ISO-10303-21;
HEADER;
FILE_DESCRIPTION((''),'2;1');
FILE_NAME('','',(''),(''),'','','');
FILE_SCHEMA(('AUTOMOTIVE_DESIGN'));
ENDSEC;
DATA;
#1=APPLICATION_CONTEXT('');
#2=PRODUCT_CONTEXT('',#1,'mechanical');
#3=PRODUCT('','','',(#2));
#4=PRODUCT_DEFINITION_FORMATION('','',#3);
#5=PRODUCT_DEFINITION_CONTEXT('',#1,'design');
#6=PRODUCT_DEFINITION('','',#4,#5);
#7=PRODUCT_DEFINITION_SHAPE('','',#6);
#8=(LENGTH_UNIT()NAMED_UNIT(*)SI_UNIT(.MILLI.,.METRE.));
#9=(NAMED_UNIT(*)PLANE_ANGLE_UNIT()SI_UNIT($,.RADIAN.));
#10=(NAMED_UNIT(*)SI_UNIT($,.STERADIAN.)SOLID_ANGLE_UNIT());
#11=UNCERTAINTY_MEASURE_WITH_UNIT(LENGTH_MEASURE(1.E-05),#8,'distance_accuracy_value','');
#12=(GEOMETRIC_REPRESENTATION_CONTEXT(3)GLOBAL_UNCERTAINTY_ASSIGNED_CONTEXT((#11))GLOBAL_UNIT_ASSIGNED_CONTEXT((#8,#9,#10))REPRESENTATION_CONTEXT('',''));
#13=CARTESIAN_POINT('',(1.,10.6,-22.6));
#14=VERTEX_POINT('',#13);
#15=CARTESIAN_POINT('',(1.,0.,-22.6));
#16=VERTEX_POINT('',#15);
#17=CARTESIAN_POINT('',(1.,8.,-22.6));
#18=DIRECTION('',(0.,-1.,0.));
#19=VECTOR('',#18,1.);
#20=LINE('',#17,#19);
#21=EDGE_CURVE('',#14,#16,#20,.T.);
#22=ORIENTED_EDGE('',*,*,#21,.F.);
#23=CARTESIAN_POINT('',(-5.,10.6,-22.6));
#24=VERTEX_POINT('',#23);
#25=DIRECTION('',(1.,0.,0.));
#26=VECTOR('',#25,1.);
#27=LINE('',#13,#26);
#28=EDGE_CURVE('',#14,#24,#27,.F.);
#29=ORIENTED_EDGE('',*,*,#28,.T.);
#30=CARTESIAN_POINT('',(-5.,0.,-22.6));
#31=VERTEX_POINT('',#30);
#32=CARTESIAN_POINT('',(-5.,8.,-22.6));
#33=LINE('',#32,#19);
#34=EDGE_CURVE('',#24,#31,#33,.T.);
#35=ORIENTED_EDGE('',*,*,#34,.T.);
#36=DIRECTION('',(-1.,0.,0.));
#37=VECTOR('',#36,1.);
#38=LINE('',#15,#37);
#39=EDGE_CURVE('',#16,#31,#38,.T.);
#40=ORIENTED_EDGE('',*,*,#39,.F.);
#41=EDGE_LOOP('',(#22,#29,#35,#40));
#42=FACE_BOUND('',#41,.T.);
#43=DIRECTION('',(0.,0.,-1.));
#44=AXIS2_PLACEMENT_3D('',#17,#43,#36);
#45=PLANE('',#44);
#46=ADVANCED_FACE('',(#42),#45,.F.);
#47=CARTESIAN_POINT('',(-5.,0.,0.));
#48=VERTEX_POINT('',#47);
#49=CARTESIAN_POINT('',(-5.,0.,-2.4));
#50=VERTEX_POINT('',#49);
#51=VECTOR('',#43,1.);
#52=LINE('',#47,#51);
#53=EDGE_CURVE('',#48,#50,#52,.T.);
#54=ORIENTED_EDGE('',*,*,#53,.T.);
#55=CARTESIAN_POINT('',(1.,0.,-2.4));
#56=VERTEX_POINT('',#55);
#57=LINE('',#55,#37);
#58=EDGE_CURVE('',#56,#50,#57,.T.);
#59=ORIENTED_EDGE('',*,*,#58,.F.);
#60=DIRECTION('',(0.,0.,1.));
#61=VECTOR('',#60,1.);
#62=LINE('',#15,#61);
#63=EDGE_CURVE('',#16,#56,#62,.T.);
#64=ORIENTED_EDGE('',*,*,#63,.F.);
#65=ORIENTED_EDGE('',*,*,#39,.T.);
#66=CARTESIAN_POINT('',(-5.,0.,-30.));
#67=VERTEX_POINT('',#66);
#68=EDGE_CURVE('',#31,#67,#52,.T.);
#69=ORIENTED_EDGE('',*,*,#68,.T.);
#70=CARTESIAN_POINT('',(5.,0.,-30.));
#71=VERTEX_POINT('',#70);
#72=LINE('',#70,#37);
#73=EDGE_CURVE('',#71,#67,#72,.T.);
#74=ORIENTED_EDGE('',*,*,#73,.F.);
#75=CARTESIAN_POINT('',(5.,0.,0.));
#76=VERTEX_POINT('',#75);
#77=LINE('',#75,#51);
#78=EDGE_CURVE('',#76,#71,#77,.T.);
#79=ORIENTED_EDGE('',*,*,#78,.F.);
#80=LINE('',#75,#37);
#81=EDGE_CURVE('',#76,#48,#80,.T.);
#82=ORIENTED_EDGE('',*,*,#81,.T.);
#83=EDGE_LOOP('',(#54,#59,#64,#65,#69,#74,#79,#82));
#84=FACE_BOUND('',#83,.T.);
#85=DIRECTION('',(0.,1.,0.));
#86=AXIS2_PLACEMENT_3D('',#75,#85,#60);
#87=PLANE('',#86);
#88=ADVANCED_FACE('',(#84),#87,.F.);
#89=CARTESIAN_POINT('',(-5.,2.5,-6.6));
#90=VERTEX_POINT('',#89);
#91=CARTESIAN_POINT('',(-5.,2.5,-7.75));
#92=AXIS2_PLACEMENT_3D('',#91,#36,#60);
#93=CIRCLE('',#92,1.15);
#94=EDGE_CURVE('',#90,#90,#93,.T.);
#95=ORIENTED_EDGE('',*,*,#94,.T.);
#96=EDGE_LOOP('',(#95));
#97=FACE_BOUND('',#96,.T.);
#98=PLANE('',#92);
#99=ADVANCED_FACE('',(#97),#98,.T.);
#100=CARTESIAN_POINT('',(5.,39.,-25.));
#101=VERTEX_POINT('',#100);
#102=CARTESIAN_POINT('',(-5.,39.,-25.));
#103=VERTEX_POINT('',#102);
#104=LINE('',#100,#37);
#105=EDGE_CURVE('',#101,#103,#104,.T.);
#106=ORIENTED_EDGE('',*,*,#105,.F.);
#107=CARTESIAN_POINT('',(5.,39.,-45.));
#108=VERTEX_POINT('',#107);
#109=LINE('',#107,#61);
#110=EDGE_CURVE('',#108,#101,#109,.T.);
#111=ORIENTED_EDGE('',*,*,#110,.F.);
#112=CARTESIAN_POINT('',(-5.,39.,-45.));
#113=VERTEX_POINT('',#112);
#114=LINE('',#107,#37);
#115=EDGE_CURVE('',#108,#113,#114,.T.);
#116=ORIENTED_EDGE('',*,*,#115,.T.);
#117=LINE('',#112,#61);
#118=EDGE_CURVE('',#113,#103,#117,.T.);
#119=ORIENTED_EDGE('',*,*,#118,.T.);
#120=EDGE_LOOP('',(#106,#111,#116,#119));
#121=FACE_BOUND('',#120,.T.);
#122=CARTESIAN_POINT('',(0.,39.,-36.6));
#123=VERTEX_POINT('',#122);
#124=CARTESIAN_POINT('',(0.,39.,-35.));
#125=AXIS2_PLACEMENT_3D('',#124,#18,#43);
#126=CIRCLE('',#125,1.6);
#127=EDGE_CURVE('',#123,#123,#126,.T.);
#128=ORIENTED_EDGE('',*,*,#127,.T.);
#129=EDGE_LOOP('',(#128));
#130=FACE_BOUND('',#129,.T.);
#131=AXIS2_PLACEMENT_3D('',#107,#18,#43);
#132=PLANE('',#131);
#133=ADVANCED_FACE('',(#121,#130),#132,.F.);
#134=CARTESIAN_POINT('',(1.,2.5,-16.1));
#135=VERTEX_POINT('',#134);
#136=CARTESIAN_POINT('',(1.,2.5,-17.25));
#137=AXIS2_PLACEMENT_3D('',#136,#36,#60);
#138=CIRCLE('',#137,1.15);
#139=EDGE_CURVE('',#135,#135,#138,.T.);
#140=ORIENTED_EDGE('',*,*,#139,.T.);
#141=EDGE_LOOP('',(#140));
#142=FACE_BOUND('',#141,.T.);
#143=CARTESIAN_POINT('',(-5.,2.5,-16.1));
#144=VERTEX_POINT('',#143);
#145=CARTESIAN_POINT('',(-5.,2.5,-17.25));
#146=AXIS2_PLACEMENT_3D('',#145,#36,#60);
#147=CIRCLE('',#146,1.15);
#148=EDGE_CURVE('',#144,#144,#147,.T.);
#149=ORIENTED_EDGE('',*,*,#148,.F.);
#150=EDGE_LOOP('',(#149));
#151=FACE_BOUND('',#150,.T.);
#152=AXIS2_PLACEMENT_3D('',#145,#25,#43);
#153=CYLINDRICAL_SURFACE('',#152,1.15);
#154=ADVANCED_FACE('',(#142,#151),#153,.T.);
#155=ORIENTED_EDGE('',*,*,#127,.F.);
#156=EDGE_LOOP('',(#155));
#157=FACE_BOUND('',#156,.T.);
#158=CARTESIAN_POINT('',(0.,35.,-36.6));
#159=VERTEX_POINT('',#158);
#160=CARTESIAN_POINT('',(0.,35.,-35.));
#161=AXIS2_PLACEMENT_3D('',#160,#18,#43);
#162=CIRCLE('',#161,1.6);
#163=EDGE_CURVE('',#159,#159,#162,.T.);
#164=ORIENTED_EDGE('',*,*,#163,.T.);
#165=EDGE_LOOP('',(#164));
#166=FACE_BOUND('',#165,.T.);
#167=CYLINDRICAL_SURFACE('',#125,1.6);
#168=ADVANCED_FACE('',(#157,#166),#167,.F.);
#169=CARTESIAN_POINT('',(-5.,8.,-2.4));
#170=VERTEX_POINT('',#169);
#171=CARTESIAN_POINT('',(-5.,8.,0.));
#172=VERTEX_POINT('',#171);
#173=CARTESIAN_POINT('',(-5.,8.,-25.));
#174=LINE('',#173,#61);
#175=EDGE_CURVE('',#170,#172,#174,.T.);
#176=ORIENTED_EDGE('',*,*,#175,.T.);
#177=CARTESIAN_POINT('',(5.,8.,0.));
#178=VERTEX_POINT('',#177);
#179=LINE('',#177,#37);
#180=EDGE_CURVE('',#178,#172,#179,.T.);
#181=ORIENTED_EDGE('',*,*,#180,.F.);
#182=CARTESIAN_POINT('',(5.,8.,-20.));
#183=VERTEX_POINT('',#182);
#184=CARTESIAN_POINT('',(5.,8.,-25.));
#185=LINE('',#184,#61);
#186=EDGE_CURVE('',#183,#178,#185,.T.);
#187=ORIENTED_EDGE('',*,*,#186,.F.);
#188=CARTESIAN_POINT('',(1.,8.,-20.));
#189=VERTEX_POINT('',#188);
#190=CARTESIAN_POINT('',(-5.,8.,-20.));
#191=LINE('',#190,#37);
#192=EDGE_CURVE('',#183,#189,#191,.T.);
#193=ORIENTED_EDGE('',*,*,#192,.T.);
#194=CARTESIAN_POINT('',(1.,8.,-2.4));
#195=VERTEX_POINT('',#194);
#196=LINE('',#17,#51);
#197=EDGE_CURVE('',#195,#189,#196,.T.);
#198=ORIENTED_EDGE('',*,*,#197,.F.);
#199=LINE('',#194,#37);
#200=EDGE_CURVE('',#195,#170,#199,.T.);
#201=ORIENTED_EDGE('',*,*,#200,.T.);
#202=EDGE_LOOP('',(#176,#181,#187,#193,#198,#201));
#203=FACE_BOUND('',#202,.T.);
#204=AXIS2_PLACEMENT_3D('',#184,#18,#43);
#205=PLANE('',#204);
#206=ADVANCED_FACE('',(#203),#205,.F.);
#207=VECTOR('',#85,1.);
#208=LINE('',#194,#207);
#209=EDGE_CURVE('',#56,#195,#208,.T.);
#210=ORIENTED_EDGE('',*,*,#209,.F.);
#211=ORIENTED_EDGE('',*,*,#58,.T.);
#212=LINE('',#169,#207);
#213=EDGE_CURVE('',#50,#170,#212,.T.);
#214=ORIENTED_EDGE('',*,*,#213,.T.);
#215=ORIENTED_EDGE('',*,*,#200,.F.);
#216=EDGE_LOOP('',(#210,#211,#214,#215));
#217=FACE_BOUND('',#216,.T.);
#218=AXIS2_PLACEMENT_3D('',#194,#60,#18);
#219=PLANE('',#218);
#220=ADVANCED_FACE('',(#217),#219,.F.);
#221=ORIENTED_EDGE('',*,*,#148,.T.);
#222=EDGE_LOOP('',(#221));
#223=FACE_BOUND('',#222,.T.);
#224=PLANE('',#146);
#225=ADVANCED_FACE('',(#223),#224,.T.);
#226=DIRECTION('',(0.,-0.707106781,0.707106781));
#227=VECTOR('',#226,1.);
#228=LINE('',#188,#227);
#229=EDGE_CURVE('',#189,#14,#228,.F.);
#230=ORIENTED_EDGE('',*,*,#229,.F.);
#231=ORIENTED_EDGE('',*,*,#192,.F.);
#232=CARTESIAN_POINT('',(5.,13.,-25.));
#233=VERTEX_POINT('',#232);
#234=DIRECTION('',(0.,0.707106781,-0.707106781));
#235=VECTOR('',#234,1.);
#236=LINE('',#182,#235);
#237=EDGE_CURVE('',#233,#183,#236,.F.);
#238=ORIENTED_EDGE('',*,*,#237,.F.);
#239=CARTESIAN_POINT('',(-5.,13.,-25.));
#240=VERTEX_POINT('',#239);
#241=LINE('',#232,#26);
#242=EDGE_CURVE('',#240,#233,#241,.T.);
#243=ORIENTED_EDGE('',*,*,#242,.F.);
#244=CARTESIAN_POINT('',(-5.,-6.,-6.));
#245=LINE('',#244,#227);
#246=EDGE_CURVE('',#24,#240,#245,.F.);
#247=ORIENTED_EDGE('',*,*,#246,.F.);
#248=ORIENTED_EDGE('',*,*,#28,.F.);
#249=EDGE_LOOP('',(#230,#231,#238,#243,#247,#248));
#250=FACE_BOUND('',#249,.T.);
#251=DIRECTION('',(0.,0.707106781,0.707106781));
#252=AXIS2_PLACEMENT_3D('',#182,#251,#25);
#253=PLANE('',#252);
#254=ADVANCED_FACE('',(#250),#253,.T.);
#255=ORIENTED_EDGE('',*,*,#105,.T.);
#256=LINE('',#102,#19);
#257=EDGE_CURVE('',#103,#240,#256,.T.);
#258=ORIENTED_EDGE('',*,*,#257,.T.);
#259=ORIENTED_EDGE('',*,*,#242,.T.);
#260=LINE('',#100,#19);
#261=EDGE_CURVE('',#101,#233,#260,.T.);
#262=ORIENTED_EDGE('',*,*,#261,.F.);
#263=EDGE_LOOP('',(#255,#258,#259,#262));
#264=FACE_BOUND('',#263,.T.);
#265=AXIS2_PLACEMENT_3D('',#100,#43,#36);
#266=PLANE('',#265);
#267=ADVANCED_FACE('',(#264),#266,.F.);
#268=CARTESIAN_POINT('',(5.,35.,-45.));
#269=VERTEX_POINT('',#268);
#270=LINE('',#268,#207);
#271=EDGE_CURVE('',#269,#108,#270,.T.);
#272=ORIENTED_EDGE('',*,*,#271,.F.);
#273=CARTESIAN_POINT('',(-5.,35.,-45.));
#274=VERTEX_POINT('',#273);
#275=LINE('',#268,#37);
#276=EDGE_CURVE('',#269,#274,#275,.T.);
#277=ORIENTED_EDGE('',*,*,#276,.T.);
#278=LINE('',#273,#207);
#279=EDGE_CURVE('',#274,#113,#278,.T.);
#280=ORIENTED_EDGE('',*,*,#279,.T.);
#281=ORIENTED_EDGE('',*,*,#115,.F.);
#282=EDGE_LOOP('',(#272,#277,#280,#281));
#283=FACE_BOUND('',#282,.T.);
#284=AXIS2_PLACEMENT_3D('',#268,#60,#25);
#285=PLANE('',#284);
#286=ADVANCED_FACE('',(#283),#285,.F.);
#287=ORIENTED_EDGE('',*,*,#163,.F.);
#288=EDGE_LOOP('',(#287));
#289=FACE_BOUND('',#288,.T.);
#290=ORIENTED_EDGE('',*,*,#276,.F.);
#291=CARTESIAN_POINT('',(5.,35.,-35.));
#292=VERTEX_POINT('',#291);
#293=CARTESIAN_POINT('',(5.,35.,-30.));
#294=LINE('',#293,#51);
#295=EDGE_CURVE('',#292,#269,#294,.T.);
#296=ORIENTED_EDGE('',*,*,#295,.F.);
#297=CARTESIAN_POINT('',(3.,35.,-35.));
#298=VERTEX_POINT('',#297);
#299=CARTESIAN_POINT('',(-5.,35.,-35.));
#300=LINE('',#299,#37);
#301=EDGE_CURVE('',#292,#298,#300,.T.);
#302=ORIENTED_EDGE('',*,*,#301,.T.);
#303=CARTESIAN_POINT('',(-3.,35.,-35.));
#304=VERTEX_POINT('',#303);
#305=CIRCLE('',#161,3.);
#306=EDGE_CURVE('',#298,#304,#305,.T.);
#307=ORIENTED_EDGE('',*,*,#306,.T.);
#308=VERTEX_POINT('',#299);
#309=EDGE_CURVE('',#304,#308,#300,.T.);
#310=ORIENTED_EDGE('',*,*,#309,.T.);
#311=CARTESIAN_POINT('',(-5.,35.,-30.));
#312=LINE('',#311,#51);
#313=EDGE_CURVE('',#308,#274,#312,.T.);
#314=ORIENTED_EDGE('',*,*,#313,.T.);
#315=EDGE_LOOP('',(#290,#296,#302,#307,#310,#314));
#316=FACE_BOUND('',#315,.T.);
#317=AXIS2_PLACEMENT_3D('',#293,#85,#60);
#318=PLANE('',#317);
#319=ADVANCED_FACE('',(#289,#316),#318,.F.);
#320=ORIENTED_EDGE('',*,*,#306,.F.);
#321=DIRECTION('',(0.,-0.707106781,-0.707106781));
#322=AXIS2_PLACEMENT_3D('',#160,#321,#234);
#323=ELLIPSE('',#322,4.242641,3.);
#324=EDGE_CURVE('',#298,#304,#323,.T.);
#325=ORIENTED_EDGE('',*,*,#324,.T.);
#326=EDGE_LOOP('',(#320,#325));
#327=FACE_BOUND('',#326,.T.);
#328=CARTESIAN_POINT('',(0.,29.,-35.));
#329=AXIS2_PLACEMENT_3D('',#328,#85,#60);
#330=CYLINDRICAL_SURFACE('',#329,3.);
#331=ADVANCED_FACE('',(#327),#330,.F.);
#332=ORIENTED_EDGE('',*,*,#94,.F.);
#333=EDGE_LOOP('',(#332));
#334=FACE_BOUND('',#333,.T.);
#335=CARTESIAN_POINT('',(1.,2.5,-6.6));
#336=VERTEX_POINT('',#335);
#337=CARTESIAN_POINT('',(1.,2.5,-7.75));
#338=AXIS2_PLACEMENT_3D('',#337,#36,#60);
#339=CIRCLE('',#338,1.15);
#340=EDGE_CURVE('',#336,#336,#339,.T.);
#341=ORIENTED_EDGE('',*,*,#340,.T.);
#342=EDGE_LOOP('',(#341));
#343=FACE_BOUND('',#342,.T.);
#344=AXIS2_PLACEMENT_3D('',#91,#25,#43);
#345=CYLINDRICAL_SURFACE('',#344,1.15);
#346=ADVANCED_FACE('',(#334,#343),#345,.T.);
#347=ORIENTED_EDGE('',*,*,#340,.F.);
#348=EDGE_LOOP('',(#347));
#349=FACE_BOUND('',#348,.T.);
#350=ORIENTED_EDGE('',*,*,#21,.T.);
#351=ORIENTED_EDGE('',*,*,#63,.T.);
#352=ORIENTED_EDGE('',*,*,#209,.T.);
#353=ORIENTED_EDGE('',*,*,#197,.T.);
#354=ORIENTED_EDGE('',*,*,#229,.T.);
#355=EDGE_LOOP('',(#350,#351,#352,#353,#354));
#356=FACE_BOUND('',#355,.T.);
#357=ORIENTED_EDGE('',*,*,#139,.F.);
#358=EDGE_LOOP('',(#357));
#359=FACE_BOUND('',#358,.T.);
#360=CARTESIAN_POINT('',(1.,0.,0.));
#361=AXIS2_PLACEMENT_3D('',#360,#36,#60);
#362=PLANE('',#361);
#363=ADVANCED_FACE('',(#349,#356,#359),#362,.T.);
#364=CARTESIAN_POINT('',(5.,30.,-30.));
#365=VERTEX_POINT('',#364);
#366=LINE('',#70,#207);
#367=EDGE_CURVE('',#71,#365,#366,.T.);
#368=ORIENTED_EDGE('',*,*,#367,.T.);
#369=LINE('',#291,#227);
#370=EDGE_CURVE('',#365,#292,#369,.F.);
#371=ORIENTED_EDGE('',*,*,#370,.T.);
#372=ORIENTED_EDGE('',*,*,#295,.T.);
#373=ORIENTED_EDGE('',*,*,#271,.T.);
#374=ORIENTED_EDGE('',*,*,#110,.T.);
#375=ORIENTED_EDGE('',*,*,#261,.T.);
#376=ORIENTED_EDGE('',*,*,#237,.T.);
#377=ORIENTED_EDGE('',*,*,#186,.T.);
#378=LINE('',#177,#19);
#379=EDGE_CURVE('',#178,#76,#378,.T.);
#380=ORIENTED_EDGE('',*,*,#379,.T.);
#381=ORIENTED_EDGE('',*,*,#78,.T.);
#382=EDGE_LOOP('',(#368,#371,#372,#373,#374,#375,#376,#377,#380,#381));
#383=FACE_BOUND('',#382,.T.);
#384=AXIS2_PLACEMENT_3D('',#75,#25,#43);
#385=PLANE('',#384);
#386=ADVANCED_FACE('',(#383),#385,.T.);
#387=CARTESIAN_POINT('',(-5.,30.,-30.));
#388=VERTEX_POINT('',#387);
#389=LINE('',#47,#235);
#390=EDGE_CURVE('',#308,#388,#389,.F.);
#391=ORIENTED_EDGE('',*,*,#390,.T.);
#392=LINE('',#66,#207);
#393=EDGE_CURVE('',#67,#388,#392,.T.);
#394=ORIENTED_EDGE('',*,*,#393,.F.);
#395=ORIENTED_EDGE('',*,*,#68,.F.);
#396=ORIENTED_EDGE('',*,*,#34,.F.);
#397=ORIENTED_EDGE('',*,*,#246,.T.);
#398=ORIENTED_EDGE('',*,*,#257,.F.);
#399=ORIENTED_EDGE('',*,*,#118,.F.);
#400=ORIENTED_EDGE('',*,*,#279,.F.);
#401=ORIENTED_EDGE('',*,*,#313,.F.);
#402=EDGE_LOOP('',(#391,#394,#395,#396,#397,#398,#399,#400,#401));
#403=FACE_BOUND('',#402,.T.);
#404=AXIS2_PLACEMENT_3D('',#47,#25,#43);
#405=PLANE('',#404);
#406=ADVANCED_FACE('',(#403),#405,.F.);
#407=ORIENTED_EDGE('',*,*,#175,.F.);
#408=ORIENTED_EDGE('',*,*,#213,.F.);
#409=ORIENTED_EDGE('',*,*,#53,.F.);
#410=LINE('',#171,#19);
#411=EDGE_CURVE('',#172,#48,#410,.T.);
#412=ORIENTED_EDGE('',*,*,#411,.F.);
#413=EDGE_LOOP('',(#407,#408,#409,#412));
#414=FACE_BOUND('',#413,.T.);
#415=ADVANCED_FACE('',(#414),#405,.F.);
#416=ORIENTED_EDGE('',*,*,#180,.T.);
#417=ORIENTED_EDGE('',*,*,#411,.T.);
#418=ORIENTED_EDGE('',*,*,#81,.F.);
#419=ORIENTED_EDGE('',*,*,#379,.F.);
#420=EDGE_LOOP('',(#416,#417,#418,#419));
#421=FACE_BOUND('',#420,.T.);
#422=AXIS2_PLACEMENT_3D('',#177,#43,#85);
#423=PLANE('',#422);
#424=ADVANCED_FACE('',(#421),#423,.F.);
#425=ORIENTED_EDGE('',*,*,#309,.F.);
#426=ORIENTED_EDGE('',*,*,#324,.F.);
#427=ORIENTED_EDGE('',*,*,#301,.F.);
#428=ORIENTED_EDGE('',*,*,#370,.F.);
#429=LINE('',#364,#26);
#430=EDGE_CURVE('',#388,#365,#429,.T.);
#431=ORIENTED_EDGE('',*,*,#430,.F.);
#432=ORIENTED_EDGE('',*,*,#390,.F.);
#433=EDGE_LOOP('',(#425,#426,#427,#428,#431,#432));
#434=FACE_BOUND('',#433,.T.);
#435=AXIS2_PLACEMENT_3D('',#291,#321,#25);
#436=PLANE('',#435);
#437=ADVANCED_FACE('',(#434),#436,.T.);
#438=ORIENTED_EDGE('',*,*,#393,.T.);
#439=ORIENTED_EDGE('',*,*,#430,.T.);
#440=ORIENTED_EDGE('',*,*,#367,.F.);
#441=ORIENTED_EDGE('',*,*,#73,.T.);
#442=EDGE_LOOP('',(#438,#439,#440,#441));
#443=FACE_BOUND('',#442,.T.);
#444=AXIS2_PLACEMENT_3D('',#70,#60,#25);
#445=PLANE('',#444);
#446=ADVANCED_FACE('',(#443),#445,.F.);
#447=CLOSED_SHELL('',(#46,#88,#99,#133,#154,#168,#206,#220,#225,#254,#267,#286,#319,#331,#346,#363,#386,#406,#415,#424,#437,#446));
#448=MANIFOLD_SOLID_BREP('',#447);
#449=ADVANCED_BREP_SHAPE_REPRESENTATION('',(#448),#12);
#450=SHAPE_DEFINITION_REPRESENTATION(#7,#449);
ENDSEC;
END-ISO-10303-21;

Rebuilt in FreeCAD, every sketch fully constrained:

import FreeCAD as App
import Part
import Sketcher
from FreeCAD import Vector


def edges_at(feature, points):
    """Names of the edges that pass closest to the given points."""
    edges = feature.Shape.Edges
    near = lambda p: min(range(len(edges)), key=lambda i: edges[i].distToShape(Part.Vertex(*p))[0])
    return sorted({f"Edge{near(p) + 1}" for p in points})


def add_polygon(sketch, points):
    """Adds a closed chain of lines whose ends are joined by coincident constraints."""
    first, n = sketch.GeometryCount, len(points)
    for a, b in zip(points, points[1:] + points[:1]):
        sketch.addGeometry(Part.LineSegment(App.Vector(*a, 0), App.Vector(*b, 0)), False)
    for i in range(n):
        sketch.addConstraint(Sketcher.Constraint("Coincident", first + i, 2, first + (i + 1) % n, 1))

doc = App.newDocument("Part")
params = doc.addObject("Spreadsheet::Sheet", "Params")
for row, (alias, value) in enumerate([
    ("sketch1_width", "35 mm"),
    ("sketch1_width2", "4 mm"),
    ("sketch1_width3", "31 mm"),
    ("sketch1_height", "30 mm"),
    ("sketch1_height2", "15 mm"),
    ("pad1_length", "10 mm"),
    ("sketch2_width", "8 mm"),
    ("sketch2_height", "20.2 mm"),
    ("pocket1_length", "6 mm"),
    ("sketch3_diameter", "2.3 mm"),
    ("pad2_length", "6 mm"),
    ("chamfer_size", "5 mm"),
    ("sketch4_diameter", "6 mm"),
    ("pocket2_length", "6 mm"),
    ("sketch5_diameter", "3.2 mm"),
], start=1):
    params.set(f"A{row}", alias)
    params.set(f"B{row}", "=" + value)
    params.setAlias(f"B{row}", alias)

body = doc.addObject("PartDesign::Body", "Body")

sketch1 = body.newObject("Sketcher::SketchObject", "Sketch")
sketch1.AttachmentSupport = (doc.getObject("YZ_Plane"), [""])
sketch1.MapMode = "FlatFace"
add_polygon(sketch1, [(0, 0), (0, -30), (35, -30), (35, -45), (39, -45), (39, -25), (8, -25), (8, 0)])
sketch1.addConstraint([
    Sketcher.Constraint("Vertical", 0),
    Sketcher.Constraint("Horizontal", 1),
    Sketcher.Constraint("Vertical", 2),
    Sketcher.Constraint("Horizontal", 3),
    Sketcher.Constraint("Vertical", 4),
    Sketcher.Constraint("Horizontal", 5),
    Sketcher.Constraint("Vertical", 6),
    Sketcher.Constraint("Horizontal", 7),
    Sketcher.Constraint("Coincident", 7, 2, -1, 1),
    Sketcher.Constraint("DistanceX", 1, 1, 1, 2, 35.0),
    Sketcher.Constraint("DistanceX", 3, 1, 3, 2, 4.0),
    Sketcher.Constraint("DistanceX", 5, 2, 5, 1, 31.0),
    Sketcher.Constraint("DistanceY", 0, 2, 0, 1, 30.0),
    Sketcher.Constraint("DistanceY", 2, 2, 2, 1, 15.0),
    Sketcher.Constraint("DistanceY", 4, 1, 4, 2, 20.0),
])
sketch1.setExpression("Constraints[17]", "Params.sketch1_width")
sketch1.setExpression("Constraints[18]", "Params.sketch1_width2")
sketch1.setExpression("Constraints[19]", "Params.sketch1_width3")
sketch1.setExpression("Constraints[20]", "Params.sketch1_height")
sketch1.setExpression("Constraints[21]", "Params.sketch1_height2")
pad1 = body.newObject("PartDesign::Pad", "Pad")
pad1.Profile = sketch1
pad1.setExpression("Length", "Params.pad1_length")
pad1.Midplane = True

sketch2 = body.newObject("Sketcher::SketchObject", "Sketch001")
sketch2.AttachmentSupport = (doc.getObject("YZ_Plane"), [""])
sketch2.MapMode = "FlatFace"
sketch2.AttachmentOffset = App.Placement(Vector(0, 0, -5), App.Rotation())
add_polygon(sketch2, [(8, -23), (0, -23), (0, -2), (8, -2)])
sketch2.addConstraint([
    Sketcher.Constraint("Horizontal", 0),
    Sketcher.Constraint("Vertical", 1),
    Sketcher.Constraint("Horizontal", 2),
    Sketcher.Constraint("Vertical", 3),
    Sketcher.Constraint("PointOnObject", 0, 2, -2),
    Sketcher.Constraint("DistanceX", 0, 2, 0, 1, 8.0),
    Sketcher.Constraint("DistanceY", 1, 1, 1, 2, 20.2),
    Sketcher.Constraint("DistanceY", 0, 2, -1, 1, 22.6),
])
sketch2.setExpression("Constraints[9]", "Params.sketch2_width")
sketch2.setExpression("Constraints[10]", "Params.sketch2_height")
pocket1 = body.newObject("PartDesign::Pocket", "Pocket")
pocket1.Profile = sketch2
pocket1.setExpression("Length", "Params.pocket1_length")
pocket1.Reversed = True

sketch3 = body.newObject("Sketcher::SketchObject", "Sketch002")
sketch3.AttachmentSupport = (doc.getObject("YZ_Plane"), [""])
sketch3.MapMode = "FlatFace"
sketch3.AttachmentOffset = App.Placement(Vector(0, 0, 1), App.Rotation())
sketch3.addGeometry([
    Part.Circle(Vector(2.5, -17.2, 0), Vector(0, 0, 1), 1.1),
    Part.Circle(Vector(2.5, -7.8, 0), Vector(0, 0, 1), 1.1),
], False)
sketch3.addConstraint([
    Sketcher.Constraint("Equal", 0, 1),
    Sketcher.Constraint("Vertical", 0, 3, 1, 3),
    Sketcher.Constraint("Diameter", 0, 2.3),
    Sketcher.Constraint("DistanceX", -1, 1, 0, 3, 2.5),
    Sketcher.Constraint("DistanceY", 0, 3, 1, 3, 9.5),
    Sketcher.Constraint("DistanceY", 0, 3, -1, 1, 17.25),
])
sketch3.setExpression("Constraints[2]", "Params.sketch3_diameter")
pad2 = body.newObject("PartDesign::Pad", "Pad001")
pad2.Profile = sketch3
pad2.setExpression("Length", "Params.pad2_length")
pad2.Reversed = True
doc.recompute()

chamfer = body.newObject("PartDesign::Chamfer", "Chamfer")
chamfer.Base = (pad2, edges_at(pad2, [(0, 8, -25), (0, 35, -30)]))
chamfer.setExpression("Size", "Params.chamfer_size")

sketch4 = body.newObject("Sketcher::SketchObject", "Sketch003")
sketch4.AttachmentSupport = (doc.getObject("XZ_Plane"), [""])
sketch4.MapMode = "FlatFace"
sketch4.AttachmentOffset = App.Placement(Vector(0, 0, -35), App.Rotation())
sketch4.addGeometry(Part.Circle(Vector(0, -35, 0), Vector(0, 0, 1), 3), False)
sketch4.addConstraint([
    Sketcher.Constraint("PointOnObject", 0, 3, -2),
    Sketcher.Constraint("Diameter", 0, 6.0),
    Sketcher.Constraint("DistanceY", 0, 3, -1, 1, 35.0),
])
sketch4.setExpression("Constraints[1]", "Params.sketch4_diameter")
pocket2 = body.newObject("PartDesign::Pocket", "Pocket001")
pocket2.Profile = sketch4
pocket2.setExpression("Length", "Params.pocket2_length")
pocket2.Reversed = True

sketch5 = body.newObject("Sketcher::SketchObject", "Sketch004")
sketch5.AttachmentSupport = (doc.getObject("XZ_Plane"), [""])
sketch5.MapMode = "FlatFace"
sketch5.AttachmentOffset = App.Placement(Vector(0, 0, -35), App.Rotation())
sketch5.addGeometry(Part.Circle(Vector(0, -35, 0), Vector(0, 0, 1), 1.6), False)
sketch5.addConstraint([
    Sketcher.Constraint("PointOnObject", 0, 3, -2),
    Sketcher.Constraint("Diameter", 0, 3.2),
    Sketcher.Constraint("DistanceY", 0, 3, -1, 1, 35.0),
])
sketch5.setExpression("Constraints[1]", "Params.sketch5_diameter")
pocket3 = body.newObject("PartDesign::Pocket", "Pocket002")
pocket3.Profile = sketch5
pocket3.Type = "ThroughAll"

doc.recompute()
